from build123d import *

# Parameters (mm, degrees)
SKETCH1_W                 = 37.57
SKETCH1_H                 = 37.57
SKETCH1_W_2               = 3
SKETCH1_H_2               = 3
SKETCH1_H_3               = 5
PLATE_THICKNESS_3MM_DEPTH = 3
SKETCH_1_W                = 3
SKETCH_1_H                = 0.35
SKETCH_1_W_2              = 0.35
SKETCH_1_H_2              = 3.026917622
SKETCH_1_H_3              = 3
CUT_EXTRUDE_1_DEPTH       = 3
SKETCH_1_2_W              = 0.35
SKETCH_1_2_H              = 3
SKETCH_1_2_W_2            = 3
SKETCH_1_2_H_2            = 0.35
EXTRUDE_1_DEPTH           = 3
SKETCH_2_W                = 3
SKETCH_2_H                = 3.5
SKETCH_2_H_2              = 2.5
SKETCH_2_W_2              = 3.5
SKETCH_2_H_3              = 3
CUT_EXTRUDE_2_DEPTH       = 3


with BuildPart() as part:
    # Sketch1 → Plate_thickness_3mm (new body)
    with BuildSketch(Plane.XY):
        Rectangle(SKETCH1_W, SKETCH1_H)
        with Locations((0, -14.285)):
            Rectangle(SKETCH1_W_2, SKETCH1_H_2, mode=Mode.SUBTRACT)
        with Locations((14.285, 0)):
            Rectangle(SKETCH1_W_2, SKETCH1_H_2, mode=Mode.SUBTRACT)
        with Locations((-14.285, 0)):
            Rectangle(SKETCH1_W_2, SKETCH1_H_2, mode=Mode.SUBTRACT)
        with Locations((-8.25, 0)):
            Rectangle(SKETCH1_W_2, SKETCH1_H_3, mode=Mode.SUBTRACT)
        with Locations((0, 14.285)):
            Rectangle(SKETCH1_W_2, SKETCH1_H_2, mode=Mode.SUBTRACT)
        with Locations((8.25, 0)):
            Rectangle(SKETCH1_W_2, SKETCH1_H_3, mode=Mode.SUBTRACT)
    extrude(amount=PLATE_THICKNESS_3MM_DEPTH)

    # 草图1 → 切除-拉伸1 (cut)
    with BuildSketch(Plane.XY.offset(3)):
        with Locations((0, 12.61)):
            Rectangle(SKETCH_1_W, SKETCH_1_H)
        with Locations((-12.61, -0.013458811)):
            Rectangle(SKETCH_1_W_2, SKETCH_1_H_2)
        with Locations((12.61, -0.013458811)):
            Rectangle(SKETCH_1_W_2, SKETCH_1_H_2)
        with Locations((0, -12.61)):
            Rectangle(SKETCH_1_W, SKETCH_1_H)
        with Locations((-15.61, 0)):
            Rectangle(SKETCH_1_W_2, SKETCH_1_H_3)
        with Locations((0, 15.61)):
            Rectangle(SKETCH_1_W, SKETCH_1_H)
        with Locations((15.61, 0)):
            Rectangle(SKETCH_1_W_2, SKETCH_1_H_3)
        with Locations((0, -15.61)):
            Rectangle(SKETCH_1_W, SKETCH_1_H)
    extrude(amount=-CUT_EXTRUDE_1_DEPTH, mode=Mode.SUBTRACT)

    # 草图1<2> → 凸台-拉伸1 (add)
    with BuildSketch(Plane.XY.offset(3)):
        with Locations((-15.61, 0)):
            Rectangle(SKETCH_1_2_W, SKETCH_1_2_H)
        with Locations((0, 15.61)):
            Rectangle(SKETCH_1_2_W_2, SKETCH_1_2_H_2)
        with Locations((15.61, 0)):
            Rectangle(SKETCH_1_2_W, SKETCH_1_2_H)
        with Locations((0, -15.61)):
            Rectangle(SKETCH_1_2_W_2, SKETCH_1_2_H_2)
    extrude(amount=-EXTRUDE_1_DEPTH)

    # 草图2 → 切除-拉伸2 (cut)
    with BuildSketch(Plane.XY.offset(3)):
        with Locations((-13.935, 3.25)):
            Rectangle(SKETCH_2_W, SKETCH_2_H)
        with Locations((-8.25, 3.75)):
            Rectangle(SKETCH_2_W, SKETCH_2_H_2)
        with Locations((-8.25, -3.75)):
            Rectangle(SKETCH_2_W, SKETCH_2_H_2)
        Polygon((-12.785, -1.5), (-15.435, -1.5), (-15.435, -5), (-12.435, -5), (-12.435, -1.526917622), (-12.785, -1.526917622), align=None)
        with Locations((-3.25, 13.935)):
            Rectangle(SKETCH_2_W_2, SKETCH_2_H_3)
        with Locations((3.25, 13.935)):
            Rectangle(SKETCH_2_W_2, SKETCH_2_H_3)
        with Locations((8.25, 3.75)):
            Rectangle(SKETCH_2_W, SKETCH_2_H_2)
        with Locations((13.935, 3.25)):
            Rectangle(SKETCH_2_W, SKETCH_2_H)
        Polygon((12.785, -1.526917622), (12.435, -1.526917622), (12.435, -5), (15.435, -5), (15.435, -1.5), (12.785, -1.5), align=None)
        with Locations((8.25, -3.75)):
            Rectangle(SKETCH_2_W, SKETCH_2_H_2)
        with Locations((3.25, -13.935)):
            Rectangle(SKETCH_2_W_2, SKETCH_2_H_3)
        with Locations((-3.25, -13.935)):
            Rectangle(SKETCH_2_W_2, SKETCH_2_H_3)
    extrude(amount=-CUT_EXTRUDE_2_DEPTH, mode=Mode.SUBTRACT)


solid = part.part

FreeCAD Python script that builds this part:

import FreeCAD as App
import Part
import Sketcher
from FreeCAD import Vector
Q = App.Units.Quantity

doc = App.newDocument("Part")
body = doc.addObject("PartDesign::Body", "Body")

sketch1 = body.newObject("Sketcher::SketchObject", "Sketch")
sketch1.AttachmentSupport = (doc.getObject("XY_Plane"), [""])
sketch1.MapMode = "FlatFace"
sketch1.addGeometry(Part.LineSegment(Vector(-18.8, 18.8, 0), Vector(-18.8, -18.8, 0)), False)
sketch1.addGeometry(Part.LineSegment(Vector(-18.8, -18.8, 0), Vector(18.8, -18.8, 0)), False)
sketch1.addGeometry(Part.LineSegment(Vector(18.8, -18.8, 0), Vector(18.8, 18.8, 0)), False)
sketch1.addGeometry(Part.LineSegment(Vector(18.8, 18.8, 0), Vector(-18.8, 18.8, 0)), False)
sketch1.addGeometry(Part.LineSegment(Vector(1.5, -15.8, 0), Vector(-1.5, -15.8, 0)), False)
sketch1.addGeometry(Part.LineSegment(Vector(-1.5, -15.8, 0), Vector(-1.5, -12.8, 0)), False)
sketch1.addGeometry(Part.LineSegment(Vector(-1.5, -12.8, 0), Vector(1.5, -12.8, 0)), False)
sketch1.addGeometry(Part.LineSegment(Vector(1.5, -12.8, 0), Vector(1.5, -15.8, 0)), False)
sketch1.addGeometry(Part.LineSegment(Vector(-12.8, -1.5, 0), Vector(-15.8, -1.5, 0)), False)
sketch1.addGeometry(Part.LineSegment(Vector(-15.8, -1.5, 0), Vector(-15.8, 1.5, 0)), False)
sketch1.addGeometry(Part.LineSegment(Vector(-15.8, 1.5, 0), Vector(-12.8, 1.5, 0)), False)
sketch1.addGeometry(Part.LineSegment(Vector(-12.8, 1.5, 0), Vector(-12.8, -1.5, 0)), False)
sketch1.addGeometry(Part.LineSegment(Vector(-6.8, -2.5, 0), Vector(-9.8, -2.5, 0)), False)
sketch1.addGeometry(Part.LineSegment(Vector(-9.8, -2.5, 0), Vector(-9.8, 2.5, 0)), False)
sketch1.addGeometry(Part.LineSegment(Vector(-9.8, 2.5, 0), Vector(-6.8, 2.5, 0)), False)
sketch1.addGeometry(Part.LineSegment(Vector(-6.8, 2.5, 0), Vector(-6.8, -2.5, 0)), False)
sketch1.addGeometry(Part.LineSegment(Vector(9.8, -2.5, 0), Vector(6.8, -2.5, 0)), False)
sketch1.addGeometry(Part.LineSegment(Vector(6.8, -2.5, 0), Vector(6.8, 2.5, 0)), False)
sketch1.addGeometry(Part.LineSegment(Vector(6.8, 2.5, 0), Vector(9.8, 2.5, 0)), False)
sketch1.addGeometry(Part.LineSegment(Vector(9.8, 2.5, 0), Vector(9.8, -2.5, 0)), False)
sketch1.addGeometry(Part.LineSegment(Vector(15.8, -1.5, 0), Vector(12.8, -1.5, 0)), False)
sketch1.addGeometry(Part.LineSegment(Vector(12.8, -1.5, 0), Vector(12.8, 1.5, 0)), False)
sketch1.addGeometry(Part.LineSegment(Vector(12.8, 1.5, 0), Vector(15.8, 1.5, 0)), False)
sketch1.addGeometry(Part.LineSegment(Vector(15.8, 1.5, 0), Vector(15.8, -1.5, 0)), False)
sketch1.addGeometry(Part.LineSegment(Vector(1.5, 12.8, 0), Vector(-1.5, 12.8, 0)), False)
sketch1.addGeometry(Part.LineSegment(Vector(-1.5, 12.8, 0), Vector(-1.5, 15.8, 0)), False)
sketch1.addGeometry(Part.LineSegment(Vector(-1.5, 15.8, 0), Vector(1.5, 15.8, 0)), False)
sketch1.addGeometry(Part.LineSegment(Vector(1.5, 15.8, 0), Vector(1.5, 12.8, 0)), False)
sketch1.addConstraint(Sketcher.Constraint("Coincident", 0, 2, 1, 1))
sketch1.addConstraint(Sketcher.Constraint("Coincident", 1, 2, 2, 1))
sketch1.addConstraint(Sketcher.Constraint("Coincident", 2, 2, 3, 1))
sketch1.addConstraint(Sketcher.Constraint("Coincident", 3, 2, 0, 1))
sketch1.addConstraint(Sketcher.Constraint("Coincident", 4, 2, 5, 1))
sketch1.addConstraint(Sketcher.Constraint("Coincident", 5, 2, 6, 1))
sketch1.addConstraint(Sketcher.Constraint("Coincident", 6, 2, 7, 1))
sketch1.addConstraint(Sketcher.Constraint("Coincident", 7, 2, 4, 1))
sketch1.addConstraint(Sketcher.Constraint("Coincident", 8, 2, 9, 1))
sketch1.addConstraint(Sketcher.Constraint("Coincident", 9, 2, 10, 1))
sketch1.addConstraint(Sketcher.Constraint("Coincident", 10, 2, 11, 1))
sketch1.addConstraint(Sketcher.Constraint("Coincident", 11, 2, 8, 1))
sketch1.addConstraint(Sketcher.Constraint("Coincident", 12, 2, 13, 1))
sketch1.addConstraint(Sketcher.Constraint("Coincident", 13, 2, 14, 1))
sketch1.addConstraint(Sketcher.Constraint("Coincident", 14, 2, 15, 1))
sketch1.addConstraint(Sketcher.Constraint("Coincident", 15, 2, 12, 1))
sketch1.addConstraint(Sketcher.Constraint("Coincident", 16, 2, 17, 1))
sketch1.addConstraint(Sketcher.Constraint("Coincident", 17, 2, 18, 1))
sketch1.addConstraint(Sketcher.Constraint("Coincident", 18, 2, 19, 1))
sketch1.addConstraint(Sketcher.Constraint("Coincident", 19, 2, 16, 1))
sketch1.addConstraint(Sketcher.Constraint("Coincident", 20, 2, 21, 1))
sketch1.addConstraint(Sketcher.Constraint("Coincident", 21, 2, 22, 1))
sketch1.addConstraint(Sketcher.Constraint("Coincident", 22, 2, 23, 1))
sketch1.addConstraint(Sketcher.Constraint("Coincident", 23, 2, 20, 1))
sketch1.addConstraint(Sketcher.Constraint("Coincident", 24, 2, 25, 1))
sketch1.addConstraint(Sketcher.Constraint("Coincident", 25, 2, 26, 1))
sketch1.addConstraint(Sketcher.Constraint("Coincident", 26, 2, 27, 1))
sketch1.addConstraint(Sketcher.Constraint("Coincident", 27, 2, 24, 1))
sketch1.addConstraint(Sketcher.Constraint("Vertical", 0))
sketch1.addConstraint(Sketcher.Constraint("Horizontal", 1))
sketch1.addConstraint(Sketcher.Constraint("Vertical", 2))
sketch1.addConstraint(Sketcher.Constraint("Horizontal", 3))
sketch1.addConstraint(Sketcher.Constraint("Horizontal", 4))
sketch1.addConstraint(Sketcher.Constraint("Vertical", 5))
sketch1.addConstraint(Sketcher.Constraint("Horizontal", 6))
sketch1.addConstraint(Sketcher.Constraint("Vertical", 7))
sketch1.addConstraint(Sketcher.Constraint("Horizontal", 8))
sketch1.addConstraint(Sketcher.Constraint("Vertical", 9))
sketch1.addConstraint(Sketcher.Constraint("Horizontal", 10))
sketch1.addConstraint(Sketcher.Constraint("Vertical", 11))
sketch1.addConstraint(Sketcher.Constraint("Horizontal", 12))
sketch1.addConstraint(Sketcher.Constraint("Vertical", 13))
sketch1.addConstraint(Sketcher.Constraint("Horizontal", 14))
sketch1.addConstraint(Sketcher.Constraint("Vertical", 15))
sketch1.addConstraint(Sketcher.Constraint("Horizontal", 16))
sketch1.addConstraint(Sketcher.Constraint("Vertical", 17))
sketch1.addConstraint(Sketcher.Constraint("Horizontal", 18))
sketch1.addConstraint(Sketcher.Constraint("Vertical", 19))
sketch1.addConstraint(Sketcher.Constraint("Horizontal", 20))
sketch1.addConstraint(Sketcher.Constraint("Vertical", 21))
sketch1.addConstraint(Sketcher.Constraint("Horizontal", 22))
sketch1.addConstraint(Sketcher.Constraint("Vertical", 23))
sketch1.addConstraint(Sketcher.Constraint("Horizontal", 24))
sketch1.addConstraint(Sketcher.Constraint("Vertical", 25))
sketch1.addConstraint(Sketcher.Constraint("Horizontal", 26))
sketch1.addConstraint(Sketcher.Constraint("Vertical", 27))
sketch1.addConstraint(Sketcher.Constraint("Symmetric", 0, 2, 2, 2, -1, 1))
sketch1.addConstraint(Sketcher.Constraint("Symmetric", 14, 2, 16, 2, -1, 1))
sketch1.addConstraint(Sketcher.Constraint("Symmetric", 12, 2, 18, 2, -1, 1))
sketch1.addConstraint(Sketcher.Constraint("Symmetric", 10, 2, 20, 2, -1, 1))
sketch1.addConstraint(Sketcher.Constraint("Symmetric", 8, 2, 22, 2, -1, 1))
sketch1.addConstraint(Sketcher.Constraint("Symmetric", 6, 2, 24, 2, -1, 1))
sketch1.addConstraint(Sketcher.Constraint("Symmetric", 4, 2, 26, 2, -1, 1))
sketch1.addConstraint(Sketcher.Constraint("Horizontal", 15, 2, 16, 2))
sketch1.addConstraint(Sketcher.Constraint("Horizontal", 11, 2, 20, 2))
sketch1.addConstraint(Sketcher.Constraint("Vertical", 5, 2, 24, 2))
sketch1.addConstraint(Sketcher.Constraint("Equal", 6, 8))
sketch1.addConstraint(Sketcher.Constraint("Equal", 10, 12))
sketch1.addConstraint(Sketcher.Constraint("Equal", 3, 0))
sketch1.addConstraint(Sketcher.Constraint("Equal", 26, 5))
sketch1.addConstraint(Sketcher.Constraint("Equal", 7, 9))
sketch1.addConstraint(Sketcher.Constraint("DistanceX", 4, 2, 4, 1, Q("3 mm")))
sketch1.addConstraint(Sketcher.Constraint("DistanceY", 13, 1, 13, 2, Q("5 mm")))
sketch1.addConstraint(Sketcher.Constraint("DistanceY", 0, 2, 4, 2, Q("3 mm")))
sketch1.addConstraint(Sketcher.Constraint("DistanceX", 0, 2, 8, 2, Q("3 mm")))
sketch1.addConstraint(Sketcher.Constraint("DistanceX", 1, 1, 1, 2, Q("37.57 mm")))
sketch1.addConstraint(Sketcher.Constraint("DistanceX", 15, 2, 16, 2, Q("13.5 mm")))
pad1 = body.newObject("PartDesign::Pad", "Pad")
pad1.Profile = sketch1
pad1.Length = 3

sketch2 = body.newObject("Sketcher::SketchObject", "Sketch001")
sketch2.AttachmentSupport = (doc.getObject("XY_Plane"), [""])
sketch2.MapMode = "FlatFace"
sketch2.AttachmentOffset = App.Placement(Vector(0, 0, 3), App.Rotation())
sketch2.addGeometry(Part.LineSegment(Vector(-1.5, 12.79, 0), Vector(-1.5, 12.44, 0)), False)
sketch2.addGeometry(Part.LineSegment(Vector(-1.5, 12.44, 0), Vector(1.5, 12.44, 0)), False)
sketch2.addGeometry(Part.LineSegment(Vector(1.5, 12.44, 0), Vector(1.5, 12.79, 0)), False)
sketch2.addGeometry(Part.LineSegment(Vector(1.5, 12.79, 0), Vector(-1.5, 12.79, 0)), False)
sketch2.addGeometry(Part.LineSegment(Vector(-12.79, 1.5, 0), Vector(-12.79, -1.53, 0)), False)
sketch2.addGeometry(Part.LineSegment(Vector(-12.79, -1.53, 0), Vector(-12.44, -1.53, 0)), False)
sketch2.addGeometry(Part.LineSegment(Vector(-12.44, -1.53, 0), Vector(-12.44, 1.5, 0)), False)
sketch2.addGeometry(Part.LineSegment(Vector(-12.44, 1.5, 0), Vector(-12.79, 1.5, 0)), False)
sketch2.addGeometry(Part.LineSegment(Vector(12.44, 1.5, 0), Vector(12.44, -1.53, 0)), False)
sketch2.addGeometry(Part.LineSegment(Vector(12.44, -1.53, 0), Vector(12.79, -1.53, 0)), False)
sketch2.addGeometry(Part.LineSegment(Vector(12.79, -1.53, 0), Vector(12.79, 1.5, 0)), False)
sketch2.addGeometry(Part.LineSegment(Vector(12.79, 1.5, 0), Vector(12.44, 1.5, 0)), False)
sketch2.addGeometry(Part.LineSegment(Vector(-1.5, -12.44, 0), Vector(-1.5, -12.79, 0)), False)
sketch2.addGeometry(Part.LineSegment(Vector(-1.5, -12.79, 0), Vector(1.5, -12.79, 0)), False)
sketch2.addGeometry(Part.LineSegment(Vector(1.5, -12.79, 0), Vector(1.5, -12.44, 0)), False)
sketch2.addGeometry(Part.LineSegment(Vector(1.5, -12.44, 0), Vector(-1.5, -12.44, 0)), False)
sketch2.addGeometry(Part.LineSegment(Vector(-15.79, 1.5, 0), Vector(-15.79, -1.5, 0)), False)
sketch2.addGeometry(Part.LineSegment(Vector(-15.79, -1.5, 0), Vector(-15.44, -1.5, 0)), False)
sketch2.addGeometry(Part.LineSegment(Vector(-15.44, -1.5, 0), Vector(-15.44, 1.5, 0)), False)
sketch2.addGeometry(Part.LineSegment(Vector(-15.44, 1.5, 0), Vector(-15.79, 1.5, 0)), False)
sketch2.addGeometry(Part.LineSegment(Vector(-1.5, 15.79, 0), Vector(-1.5, 15.44, 0)), False)
sketch2.addGeometry(Part.LineSegment(Vector(-1.5, 15.44, 0), Vector(1.5, 15.44, 0)), False)
sketch2.addGeometry(Part.LineSegment(Vector(1.5, 15.44, 0), Vector(1.5, 15.79, 0)), False)
sketch2.addGeometry(Part.LineSegment(Vector(1.5, 15.79, 0), Vector(-1.5, 15.79, 0)), False)
sketch2.addGeometry(Part.LineSegment(Vector(15.44, 1.5, 0), Vector(15.44, -1.5, 0)), False)
sketch2.addGeometry(Part.LineSegment(Vector(15.44, -1.5, 0), Vector(15.79, -1.5, 0)), False)
sketch2.addGeometry(Part.LineSegment(Vector(15.79, -1.5, 0), Vector(15.79, 1.5, 0)), False)
sketch2.addGeometry(Part.LineSegment(Vector(15.79, 1.5, 0), Vector(15.44, 1.5, 0)), False)
sketch2.addGeometry(Part.LineSegment(Vector(-1.5, -15.44, 0), Vector(-1.5, -15.79, 0)), False)
sketch2.addGeometry(Part.LineSegment(Vector(-1.5, -15.79, 0), Vector(1.5, -15.79, 0)), False)
sketch2.addGeometry(Part.LineSegment(Vector(1.5, -15.79, 0), Vector(1.5, -15.44, 0)), False)
sketch2.addGeometry(Part.LineSegment(Vector(1.5, -15.44, 0), Vector(-1.5, -15.44, 0)), False)
sketch2.addConstraint(Sketcher.Constraint("Coincident", 0, 2, 1, 1))
sketch2.addConstraint(Sketcher.Constraint("Coincident", 1, 2, 2, 1))
sketch2.addConstraint(Sketcher.Constraint("Coincident", 2, 2, 3, 1))
sketch2.addConstraint(Sketcher.Constraint("Coincident", 3, 2, 0, 1))
sketch2.addConstraint(Sketcher.Constraint("Coincident", 4, 2, 5, 1))
sketch2.addConstraint(Sketcher.Constraint("Coincident", 5, 2, 6, 1))
sketch2.addConstraint(Sketcher.Constraint("Coincident", 6, 2, 7, 1))
sketch2.addConstraint(Sketcher.Constraint("Coincident", 7, 2, 4, 1))
sketch2.addConstraint(Sketcher.Constraint("Coincident", 8, 2, 9, 1))
sketch2.addConstraint(Sketcher.Constraint("Coincident", 9, 2, 10, 1))
sketch2.addConstraint(Sketcher.Constraint("Coincident", 10, 2, 11, 1))
sketch2.addConstraint(Sketcher.Constraint("Coincident", 11, 2, 8, 1))
sketch2.addConstraint(Sketcher.Constraint("Coincident", 12, 2, 13, 1))
sketch2.addConstraint(Sketcher.Constraint("Coincident", 13, 2, 14, 1))
sketch2.addConstraint(Sketcher.Constraint("Coincident", 14, 2, 15, 1))
sketch2.addConstraint(Sketcher.Constraint("Coincident", 15, 2, 12, 1))
sketch2.addConstraint(Sketcher.Constraint("Coincident", 16, 2, 17, 1))
sketch2.addConstraint(Sketcher.Constraint("Coincident", 17, 2, 18, 1))
sketch2.addConstraint(Sketcher.Constraint("Coincident", 18, 2, 19, 1))
sketch2.addConstraint(Sketcher.Constraint("Coincident", 19, 2, 16, 1))
sketch2.addConstraint(Sketcher.Constraint("Coincident", 20, 2, 21, 1))
sketch2.addConstraint(Sketcher.Constraint("Coincident", 21, 2, 22, 1))
sketch2.addConstraint(Sketcher.Constraint("Coincident", 22, 2, 23, 1))
sketch2.addConstraint(Sketcher.Constraint("Coincident", 23, 2, 20, 1))
sketch2.addConstraint(Sketcher.Constraint("Coincident", 24, 2, 25, 1))
sketch2.addConstraint(Sketcher.Constraint("Coincident", 25, 2, 26, 1))
sketch2.addConstraint(Sketcher.Constraint("Coincident", 26, 2, 27, 1))
sketch2.addConstraint(Sketcher.Constraint("Coincident", 27, 2, 24, 1))
sketch2.addConstraint(Sketcher.Constraint("Coincident", 28, 2, 29, 1))
sketch2.addConstraint(Sketcher.Constraint("Coincident", 29, 2, 30, 1))
sketch2.addConstraint(Sketcher.Constraint("Coincident", 30, 2, 31, 1))
sketch2.addConstraint(Sketcher.Constraint("Coincident", 31, 2, 28, 1))
sketch2.addConstraint(Sketcher.Constraint("Vertical", 0))
sketch2.addConstraint(Sketcher.Constraint("Horizontal", 1))
sketch2.addConstraint(Sketcher.Constraint("Vertical", 2))
sketch2.addConstraint(Sketcher.Constraint("Horizontal", 3))
sketch2.addConstraint(Sketcher.Constraint("Vertical", 4))
sketch2.addConstraint(Sketcher.Constraint("Horizontal", 5))
sketch2.addConstraint(Sketcher.Constraint("Vertical", 6))
sketch2.addConstraint(Sketcher.Constraint("Horizontal", 7))
sketch2.addConstraint(Sketcher.Constraint("Vertical", 8))
sketch2.addConstraint(Sketcher.Constraint("Horizontal", 9))
sketch2.addConstraint(Sketcher.Constraint("Vertical", 10))
sketch2.addConstraint(Sketcher.Constraint("Horizontal", 11))
sketch2.addConstraint(Sketcher.Constraint("Vertical", 12))
sketch2.addConstraint(Sketcher.Constraint("Horizontal", 13))
sketch2.addConstraint(Sketcher.Constraint("Vertical", 14))
sketch2.addConstraint(Sketcher.Constraint("Horizontal", 15))
sketch2.addConstraint(Sketcher.Constraint("Vertical", 16))
sketch2.addConstraint(Sketcher.Constraint("Horizontal", 17))
sketch2.addConstraint(Sketcher.Constraint("Vertical", 18))
sketch2.addConstraint(Sketcher.Constraint("Horizontal", 19))
sketch2.addConstraint(Sketcher.Constraint("Vertical", 20))
sketch2.addConstraint(Sketcher.Constraint("Horizontal", 21))
sketch2.addConstraint(Sketcher.Constraint("Vertical", 22))
sketch2.addConstraint(Sketcher.Constraint("Horizontal", 23))
sketch2.addConstraint(Sketcher.Constraint("Vertical", 24))
sketch2.addConstraint(Sketcher.Constraint("Horizontal", 25))
sketch2.addConstraint(Sketcher.Constraint("Vertical", 26))
sketch2.addConstraint(Sketcher.Constraint("Horizontal", 27))
sketch2.addConstraint(Sketcher.Constraint("Vertical", 28))
sketch2.addConstraint(Sketcher.Constraint("Horizontal", 29))
sketch2.addConstraint(Sketcher.Constraint("Vertical", 30))
sketch2.addConstraint(Sketcher.Constraint("Horizontal", 31))
sketch2.addConstraint(Sketcher.Constraint("Symmetric", 2, 2, 12, 2, -1, 1))
sketch2.addConstraint(Sketcher.Constraint("Symmetric", 0, 2, 14, 2, -1, 1))
sketch2.addConstraint(Sketcher.Constraint("Symmetric", 18, 2, 24, 2, -1, 1))
sketch2.addConstraint(Sketcher.Constraint("Symmetric", 16, 2, 26, 2, -1, 1))
sketch2.addConstraint(Sketcher.Constraint("Symmetric", 22, 2, 28, 2, -1, 1))
sketch2.addConstraint(Sketcher.Constraint("Symmetric", 20, 2, 30, 2, -1, 1))
sketch2.addConstraint(Sketcher.Constraint("Symmetric", 5, 2, 8, 2, -2))
sketch2.addConstraint(Sketcher.Constraint("Symmetric", 7, 2, 10, 2, -2))
sketch2.addConstraint(Sketcher.Constraint("Horizontal", 11, 2, 18, 2))
sketch2.addConstraint(Sketcher.Constraint("Horizontal", 17, 2, 24, 2))
sketch2.addConstraint(Sketcher.Constraint("Vertical", 3, 2, 12, 2))
sketch2.addConstraint(Sketcher.Constraint("Vertical", 15, 2, 20, 2))
sketch2.addConstraint(Sketcher.Constraint("Vertical", 14, 2, 21, 2))
sketch2.addConstraint(Sketcher.Constraint("Equal", 11, 17))
sketch2.addConstraint(Sketcher.Constraint("Equal", 27, 0))
sketch2.addConstraint(Sketcher.Constraint("Equal", 31, 16))
sketch2.addConstraint(Sketcher.Constraint("Equal", 14, 20))
sketch2.addConstraint(Sketcher.Constraint("DistanceX", 1, 1, 1, 2, Q("3 mm")))
sketch2.addConstraint(Sketcher.Constraint("DistanceX", 16, 2, 4, 2, Q("3 mm")))
sketch2.addConstraint(Sketcher.Constraint("DistanceY", 0, 2, 20, 2, Q("3 mm")))
sketch2.addConstraint(Sketcher.Constraint("DistanceX", 5, 1, 5, 2, Q("0.35 mm")))
sketch2.addConstraint(Sketcher.Constraint("DistanceX", 5, 2, 8, 2, Q("24.87 mm")))
sketch2.addConstraint(Sketcher.Constraint("DistanceY", -1, 1, 0, 2, Q("12.435 mm")))
sketch2.addConstraint(Sketcher.Constraint("DistanceY", 4, 2, 4, 1, Q("3.026918 mm")))
pocket1 = body.newObject("PartDesign::Pocket", "Pocket")
pocket1.Profile = sketch2
pocket1.Length = 3

sketch3 = body.newObject("Sketcher::SketchObject", "Sketch002")
sketch3.AttachmentSupport = (doc.getObject("XY_Plane"), [""])
sketch3.MapMode = "FlatFace"
sketch3.AttachmentOffset = App.Placement(Vector(0, 0, 3), App.Rotation())
sketch3.addGeometry(Part.LineSegment(Vector(-15.79, 1.5, 0), Vector(-15.79, -1.5, 0)), False)
sketch3.addGeometry(Part.LineSegment(Vector(-15.79, -1.5, 0), Vector(-15.44, -1.5, 0)), False)
sketch3.addGeometry(Part.LineSegment(Vector(-15.44, -1.5, 0), Vector(-15.44, 1.5, 0)), False)
sketch3.addGeometry(Part.LineSegment(Vector(-15.44, 1.5, 0), Vector(-15.79, 1.5, 0)), False)
sketch3.addGeometry(Part.LineSegment(Vector(-1.5, 15.79, 0), Vector(-1.5, 15.44, 0)), False)
sketch3.addGeometry(Part.LineSegment(Vector(-1.5, 15.44, 0), Vector(1.5, 15.44, 0)), False)
sketch3.addGeometry(Part.LineSegment(Vector(1.5, 15.44, 0), Vector(1.5, 15.79, 0)), False)
sketch3.addGeometry(Part.LineSegment(Vector(1.5, 15.79, 0), Vector(-1.5, 15.79, 0)), False)
sketch3.addGeometry(Part.LineSegment(Vector(15.44, 1.5, 0), Vector(15.44, -1.5, 0)), False)
sketch3.addGeometry(Part.LineSegment(Vector(15.44, -1.5, 0), Vector(15.79, -1.5, 0)), False)
sketch3.addGeometry(Part.LineSegment(Vector(15.79, -1.5, 0), Vector(15.79, 1.5, 0)), False)
sketch3.addGeometry(Part.LineSegment(Vector(15.79, 1.5, 0), Vector(15.44, 1.5, 0)), False)
sketch3.addGeometry(Part.LineSegment(Vector(-1.5, -15.44, 0), Vector(-1.5, -15.79, 0)), False)
sketch3.addGeometry(Part.LineSegment(Vector(-1.5, -15.79, 0), Vector(1.5, -15.79, 0)), False)
sketch3.addGeometry(Part.LineSegment(Vector(1.5, -15.79, 0), Vector(1.5, -15.44, 0)), False)
sketch3.addGeometry(Part.LineSegment(Vector(1.5, -15.44, 0), Vector(-1.5, -15.44, 0)), False)
sketch3.addConstraint(Sketcher.Constraint("Coincident", 0, 2, 1, 1))
sketch3.addConstraint(Sketcher.Constraint("Coincident", 1, 2, 2, 1))
sketch3.addConstraint(Sketcher.Constraint("Coincident", 2, 2, 3, 1))
sketch3.addConstraint(Sketcher.Constraint("Coincident", 3, 2, 0, 1))
sketch3.addConstraint(Sketcher.Constraint("Coincident", 4, 2, 5, 1))
sketch3.addConstraint(Sketcher.Constraint("Coincident", 5, 2, 6, 1))
sketch3.addConstraint(Sketcher.Constraint("Coincident", 6, 2, 7, 1))
sketch3.addConstraint(Sketcher.Constraint("Coincident", 7, 2, 4, 1))
sketch3.addConstraint(Sketcher.Constraint("Coincident", 8, 2, 9, 1))
sketch3.addConstraint(Sketcher.Constraint("Coincident", 9, 2, 10, 1))
sketch3.addConstraint(Sketcher.Constraint("Coincident", 10, 2, 11, 1))
sketch3.addConstraint(Sketcher.Constraint("Coincident", 11, 2, 8, 1))
sketch3.addConstraint(Sketcher.Constraint("Coincident", 12, 2, 13, 1))
sketch3.addConstraint(Sketcher.Constraint("Coincident", 13, 2, 14, 1))
sketch3.addConstraint(Sketcher.Constraint("Coincident", 14, 2, 15, 1))
sketch3.addConstraint(Sketcher.Constraint("Coincident", 15, 2, 12, 1))
sketch3.addConstraint(Sketcher.Constraint("Vertical", 0))
sketch3.addConstraint(Sketcher.Constraint("Horizontal", 1))
sketch3.addConstraint(Sketcher.Constraint("Vertical", 2))
sketch3.addConstraint(Sketcher.Constraint("Horizontal", 3))
sketch3.addConstraint(Sketcher.Constraint("Vertical", 4))
sketch3.addConstraint(Sketcher.Constraint("Horizontal", 5))
sketch3.addConstraint(Sketcher.Constraint("Vertical", 6))
sketch3.addConstraint(Sketcher.Constraint("Horizontal", 7))
sketch3.addConstraint(Sketcher.Constraint("Vertical", 8))
sketch3.addConstraint(Sketcher.Constraint("Horizontal", 9))
sketch3.addConstraint(Sketcher.Constraint("Vertical", 10))
sketch3.addConstraint(Sketcher.Constraint("Horizontal", 11))
sketch3.addConstraint(Sketcher.Constraint("Vertical", 12))
sketch3.addConstraint(Sketcher.Constraint("Horizontal", 13))
sketch3.addConstraint(Sketcher.Constraint("Vertical", 14))
sketch3.addConstraint(Sketcher.Constraint("Horizontal", 15))
sketch3.addConstraint(Sketcher.Constraint("Symmetric", 2, 2, 8, 2, -1, 1))
sketch3.addConstraint(Sketcher.Constraint("Symmetric", 0, 2, 10, 2, -1, 1))
sketch3.addConstraint(Sketcher.Constraint("Symmetric", 6, 2, 12, 2, -1, 1))
sketch3.addConstraint(Sketcher.Constraint("Symmetric", 4, 2, 14, 2, -1, 1))
sketch3.addConstraint(Sketcher.Constraint("Horizontal", 1, 2, 8, 2))
sketch3.addConstraint(Sketcher.Constraint("Vertical", 7, 2, 12, 2))
sketch3.addConstraint(Sketcher.Constraint("Equal", 15, 0))
sketch3.addConstraint(Sketcher.Constraint("Equal", 11, 4))
sketch3.addConstraint(Sketcher.Constraint("DistanceX", 5, 1, 5, 2, Q("3 mm")))
sketch3.addConstraint(Sketcher.Constraint("DistanceX", 1, 1, 1, 2, Q("0.35 mm")))
sketch3.addConstraint(Sketcher.Constraint("DistanceX", 1, 2, 8, 2, Q("30.87 mm")))
sketch3.addConstraint(Sketcher.Constraint("DistanceY", -1, 1, 4, 2, Q("15.435 mm")))
pad2 = body.newObject("PartDesign::Pad", "Pad001")
pad2.Profile = sketch3
pad2.Length = 3
pad2.Reversed = True

sketch4 = body.newObject("Sketcher::SketchObject", "Sketch003")
sketch4.AttachmentSupport = (doc.getObject("XY_Plane"), [""])
sketch4.MapMode = "FlatFace"
sketch4.AttachmentOffset = App.Placement(Vector(0, 0, 3), App.Rotation())
sketch4.addGeometry(Part.LineSegment(Vector(-15.435, 5, 0), Vector(-15.435, 1.5, 0)), False)
sketch4.addGeometry(Part.LineSegment(Vector(-15.435, 1.5, 0), Vector(-12.435, 1.5, 0)), False)
sketch4.addGeometry(Part.LineSegment(Vector(-12.435, 1.5, 0), Vector(-12.435, 5, 0)), False)
sketch4.addGeometry(Part.LineSegment(Vector(-12.435, 5, 0), Vector(-15.435, 5, 0)), False)
sketch4.addGeometry(Part.LineSegment(Vector(-9.75, 5, 0), Vector(-9.75, 2.5, 0)), False)
sketch4.addGeometry(Part.LineSegment(Vector(-9.75, 2.5, 0), Vector(-6.75, 2.5, 0)), False)
sketch4.addGeometry(Part.LineSegment(Vector(-6.75, 2.5, 0), Vector(-6.75, 5, 0)), False)
sketch4.addGeometry(Part.LineSegment(Vector(-6.75, 5, 0), Vector(-9.75, 5, 0)), False)
sketch4.addGeometry(Part.LineSegment(Vector(-9.75, -2.5, 0), Vector(-9.75, -5, 0)), False)
sketch4.addGeometry(Part.LineSegment(Vector(-9.75, -5, 0), Vector(-6.75, -5, 0)), False)
sketch4.addGeometry(Part.LineSegment(Vector(-6.75, -5, 0), Vector(-6.75, -2.5, 0)), False)
sketch4.addGeometry(Part.LineSegment(Vector(-6.75, -2.5, 0), Vector(-9.75, -2.5, 0)), False)
sketch4.addGeometry(Part.LineSegment(Vector(-12.785, -1.5, 0), Vector(-15.435, -1.5, 0)), False)
sketch4.addGeometry(Part.LineSegment(Vector(-15.435, -1.5, 0), Vector(-15.435, -5, 0)), False)
sketch4.addGeometry(Part.LineSegment(Vector(-15.435, -5, 0), Vector(-12.435, -5, 0)), False)
sketch4.addGeometry(Part.LineSegment(Vector(-12.435, -5, 0), Vector(-12.435, -1.527, 0)), False)
sketch4.addGeometry(Part.LineSegment(Vector(-12.435, -1.527, 0), Vector(-12.785, -1.527, 0)), False)
sketch4.addGeometry(Part.LineSegment(Vector(-12.785, -1.527, 0), Vector(-12.785, -1.5, 0)), False)
sketch4.addGeometry(Part.LineSegment(Vector(-5, 15.435, 0), Vector(-5, 12.435, 0)), False)
sketch4.addGeometry(Part.LineSegment(Vector(-5, 12.435, 0), Vector(-1.5, 12.435, 0)), False)
sketch4.addGeometry(Part.LineSegment(Vector(-1.5, 12.435, 0), Vector(-1.5, 15.435, 0)), False)
sketch4.addGeometry(Part.LineSegment(Vector(-1.5, 15.435, 0), Vector(-5, 15.435, 0)), False)
sketch4.addGeometry(Part.LineSegment(Vector(1.5, 15.435, 0), Vector(1.5, 12.435, 0)), False)
sketch4.addGeometry(Part.LineSegment(Vector(1.5, 12.435, 0), Vector(5, 12.435, 0)), False)
sketch4.addGeometry(Part.LineSegment(Vector(5, 12.435, 0), Vector(5, 15.435, 0)), False)
sketch4.addGeometry(Part.LineSegment(Vector(5, 15.435, 0), Vector(1.5, 15.435, 0)), False)
sketch4.addGeometry(Part.LineSegment(Vector(6.75, 5, 0), Vector(6.75, 2.5, 0)), False)
sketch4.addGeometry(Part.LineSegment(Vector(6.75, 2.5, 0), Vector(9.75, 2.5, 0)), False)
sketch4.addGeometry(Part.LineSegment(Vector(9.75, 2.5, 0), Vector(9.75, 5, 0)), False)
sketch4.addGeometry(Part.LineSegment(Vector(9.75, 5, 0), Vector(6.75, 5, 0)), False)
sketch4.addGeometry(Part.LineSegment(Vector(12.435, 5, 0), Vector(12.435, 1.5, 0)), False)
sketch4.addGeometry(Part.LineSegment(Vector(12.435, 1.5, 0), Vector(15.435, 1.5, 0)), False)
sketch4.addGeometry(Part.LineSegment(Vector(15.435, 1.5, 0), Vector(15.435, 5, 0)), False)
sketch4.addGeometry(Part.LineSegment(Vector(15.435, 5, 0), Vector(12.435, 5, 0)), False)
sketch4.addGeometry(Part.LineSegment(Vector(12.785, -1.527, 0), Vector(12.435, -1.527, 0)), False)
sketch4.addGeometry(Part.LineSegment(Vector(12.435, -1.527, 0), Vector(12.435, -5, 0)), False)
sketch4.addGeometry(Part.LineSegment(Vector(12.435, -5, 0), Vector(15.435, -5, 0)), False)
sketch4.addGeometry(Part.LineSegment(Vector(15.435, -5, 0), Vector(15.435, -1.5, 0)), False)
sketch4.addGeometry(Part.LineSegment(Vector(15.435, -1.5, 0), Vector(12.785, -1.5, 0)), False)
sketch4.addGeometry(Part.LineSegment(Vector(12.785, -1.5, 0), Vector(12.785, -1.527, 0)), False)
sketch4.addGeometry(Part.LineSegment(Vector(6.75, -2.5, 0), Vector(6.75, -5, 0)), False)
sketch4.addGeometry(Part.LineSegment(Vector(6.75, -5, 0), Vector(9.75, -5, 0)), False)
sketch4.addGeometry(Part.LineSegment(Vector(9.75, -5, 0), Vector(9.75, -2.5, 0)), False)
sketch4.addGeometry(Part.LineSegment(Vector(9.75, -2.5, 0), Vector(6.75, -2.5, 0)), False)
sketch4.addGeometry(Part.LineSegment(Vector(1.5, -12.435, 0), Vector(1.5, -15.435, 0)), False)
sketch4.addGeometry(Part.LineSegment(Vector(1.5, -15.435, 0), Vector(5, -15.435, 0)), False)
sketch4.addGeometry(Part.LineSegment(Vector(5, -15.435, 0), Vector(5, -12.435, 0)), False)
sketch4.addGeometry(Part.LineSegment(Vector(5, -12.435, 0), Vector(1.5, -12.435, 0)), False)
sketch4.addGeometry(Part.LineSegment(Vector(-5, -12.435, 0), Vector(-5, -15.435, 0)), False)
sketch4.addGeometry(Part.LineSegment(Vector(-5, -15.435, 0), Vector(-1.5, -15.435, 0)), False)
sketch4.addGeometry(Part.LineSegment(Vector(-1.5, -15.435, 0), Vector(-1.5, -12.435, 0)), False)
sketch4.addGeometry(Part.LineSegment(Vector(-1.5, -12.435, 0), Vector(-5, -12.435, 0)), False)
sketch4.addConstraint(Sketcher.Constraint("Coincident", 0, 2, 1, 1))
sketch4.addConstraint(Sketcher.Constraint("Coincident", 1, 2, 2, 1))
sketch4.addConstraint(Sketcher.Constraint("Coincident", 2, 2, 3, 1))
sketch4.addConstraint(Sketcher.Constraint("Coincident", 3, 2, 0, 1))
sketch4.addConstraint(Sketcher.Constraint("Coincident", 4, 2, 5, 1))
sketch4.addConstraint(Sketcher.Constraint("Coincident", 5, 2, 6, 1))
sketch4.addConstraint(Sketcher.Constraint("Coincident", 6, 2, 7, 1))
sketch4.addConstraint(Sketcher.Constraint("Coincident", 7, 2, 4, 1))
sketch4.addConstraint(Sketcher.Constraint("Coincident", 8, 2, 9, 1))
sketch4.addConstraint(Sketcher.Constraint("Coincident", 9, 2, 10, 1))
sketch4.addConstraint(Sketcher.Constraint("Coincident", 10, 2, 11, 1))
sketch4.addConstraint(Sketcher.Constraint("Coincident", 11, 2, 8, 1))
sketch4.addConstraint(Sketcher.Constraint("Coincident", 12, 2, 13, 1))
sketch4.addConstraint(Sketcher.Constraint("Coincident", 13, 2, 14, 1))
sketch4.addConstraint(Sketcher.Constraint("Coincident", 14, 2, 15, 1))
sketch4.addConstraint(Sketcher.Constraint("Coincident", 15, 2, 16, 1))
sketch4.addConstraint(Sketcher.Constraint("Coincident", 16, 2, 17, 1))
sketch4.addConstraint(Sketcher.Constraint("Coincident", 17, 2, 12, 1))
sketch4.addConstraint(Sketcher.Constraint("Coincident", 18, 2, 19, 1))
sketch4.addConstraint(Sketcher.Constraint("Coincident", 19, 2, 20, 1))
sketch4.addConstraint(Sketcher.Constraint("Coincident", 20, 2, 21, 1))
sketch4.addConstraint(Sketcher.Constraint("Coincident", 21, 2, 18, 1))
sketch4.addConstraint(Sketcher.Constraint("Coincident", 22, 2, 23, 1))
sketch4.addConstraint(Sketcher.Constraint("Coincident", 23, 2, 24, 1))
sketch4.addConstraint(Sketcher.Constraint("Coincident", 24, 2, 25, 1))
sketch4.addConstraint(Sketcher.Constraint("Coincident", 25, 2, 22, 1))
sketch4.addConstraint(Sketcher.Constraint("Coincident", 26, 2, 27, 1))
sketch4.addConstraint(Sketcher.Constraint("Coincident", 27, 2, 28, 1))
sketch4.addConstraint(Sketcher.Constraint("Coincident", 28, 2, 29, 1))
sketch4.addConstraint(Sketcher.Constraint("Coincident", 29, 2, 26, 1))
sketch4.addConstraint(Sketcher.Constraint("Coincident", 30, 2, 31, 1))
sketch4.addConstraint(Sketcher.Constraint("Coincident", 31, 2, 32, 1))
sketch4.addConstraint(Sketcher.Constraint("Coincident", 32, 2, 33, 1))
sketch4.addConstraint(Sketcher.Constraint("Coincident", 33, 2, 30, 1))
sketch4.addConstraint(Sketcher.Constraint("Coincident", 34, 2, 35, 1))
sketch4.addConstraint(Sketcher.Constraint("Coincident", 35, 2, 36, 1))
sketch4.addConstraint(Sketcher.Constraint("Coincident", 36, 2, 37, 1))
sketch4.addConstraint(Sketcher.Constraint("Coincident", 37, 2, 38, 1))
sketch4.addConstraint(Sketcher.Constraint("Coincident", 38, 2, 39, 1))
sketch4.addConstraint(Sketcher.Constraint("Coincident", 39, 2, 34, 1))
sketch4.addConstraint(Sketcher.Constraint("Coincident", 40, 2, 41, 1))
sketch4.addConstraint(Sketcher.Constraint("Coincident", 41, 2, 42, 1))
sketch4.addConstraint(Sketcher.Constraint("Coincident", 42, 2, 43, 1))
sketch4.addConstraint(Sketcher.Constraint("Coincident", 43, 2, 40, 1))
sketch4.addConstraint(Sketcher.Constraint("Coincident", 44, 2, 45, 1))
sketch4.addConstraint(Sketcher.Constraint("Coincident", 45, 2, 46, 1))
sketch4.addConstraint(Sketcher.Constraint("Coincident", 46, 2, 47, 1))
sketch4.addConstraint(Sketcher.Constraint("Coincident", 47, 2, 44, 1))
sketch4.addConstraint(Sketcher.Constraint("Coincident", 48, 2, 49, 1))
sketch4.addConstraint(Sketcher.Constraint("Coincident", 49, 2, 50, 1))
sketch4.addConstraint(Sketcher.Constraint("Coincident", 50, 2, 51, 1))
sketch4.addConstraint(Sketcher.Constraint("Coincident", 51, 2, 48, 1))
sketch4.addConstraint(Sketcher.Constraint("Vertical", 0))
sketch4.addConstraint(Sketcher.Constraint("Horizontal", 1))
sketch4.addConstraint(Sketcher.Constraint("Vertical", 2))
sketch4.addConstraint(Sketcher.Constraint("Horizontal", 3))
sketch4.addConstraint(Sketcher.Constraint("Vertical", 4))
sketch4.addConstraint(Sketcher.Constraint("Horizontal", 5))
sketch4.addConstraint(Sketcher.Constraint("Vertical", 6))
sketch4.addConstraint(Sketcher.Constraint("Horizontal", 7))
sketch4.addConstraint(Sketcher.Constraint("Vertical", 8))
sketch4.addConstraint(Sketcher.Constraint("Horizontal", 9))
sketch4.addConstraint(Sketcher.Constraint("Vertical", 10))
sketch4.addConstraint(Sketcher.Constraint("Horizontal", 11))
sketch4.addConstraint(Sketcher.Constraint("Horizontal", 12))
sketch4.addConstraint(Sketcher.Constraint("Vertical", 13))
sketch4.addConstraint(Sketcher.Constraint("Horizontal", 14))
sketch4.addConstraint(Sketcher.Constraint("Vertical", 15))
sketch4.addConstraint(Sketcher.Constraint("Horizontal", 16))
sketch4.addConstraint(Sketcher.Constraint("Vertical", 17))
sketch4.addConstraint(Sketcher.Constraint("Vertical", 18))
sketch4.addConstraint(Sketcher.Constraint("Horizontal", 19))
sketch4.addConstraint(Sketcher.Constraint("Vertical", 20))
sketch4.addConstraint(Sketcher.Constraint("Horizontal", 21))
sketch4.addConstraint(Sketcher.Constraint("Vertical", 22))
sketch4.addConstraint(Sketcher.Constraint("Horizontal", 23))
sketch4.addConstraint(Sketcher.Constraint("Vertical", 24))
sketch4.addConstraint(Sketcher.Constraint("Horizontal", 25))
sketch4.addConstraint(Sketcher.Constraint("Vertical", 26))
sketch4.addConstraint(Sketcher.Constraint("Horizontal", 27))
sketch4.addConstraint(Sketcher.Constraint("Vertical", 28))
sketch4.addConstraint(Sketcher.Constraint("Horizontal", 29))
sketch4.addConstraint(Sketcher.Constraint("Vertical", 30))
sketch4.addConstraint(Sketcher.Constraint("Horizontal", 31))
sketch4.addConstraint(Sketcher.Constraint("Vertical", 32))
sketch4.addConstraint(Sketcher.Constraint("Horizontal", 33))
sketch4.addConstraint(Sketcher.Constraint("Horizontal", 34))
sketch4.addConstraint(Sketcher.Constraint("Vertical", 35))
sketch4.addConstraint(Sketcher.Constraint("Horizontal", 36))
sketch4.addConstraint(Sketcher.Constraint("Vertical", 37))
sketch4.addConstraint(Sketcher.Constraint("Horizontal", 38))
sketch4.addConstraint(Sketcher.Constraint("Vertical", 39))
sketch4.addConstraint(Sketcher.Constraint("Vertical", 40))
sketch4.addConstraint(Sketcher.Constraint("Horizontal", 41))
sketch4.addConstraint(Sketcher.Constraint("Vertical", 42))
sketch4.addConstraint(Sketcher.Constraint("Horizontal", 43))
sketch4.addConstraint(Sketcher.Constraint("Vertical", 44))
sketch4.addConstraint(Sketcher.Constraint("Horizontal", 45))
sketch4.addConstraint(Sketcher.Constraint("Vertical", 46))
sketch4.addConstraint(Sketcher.Constraint("Horizontal", 47))
sketch4.addConstraint(Sketcher.Constraint("Vertical", 48))
sketch4.addConstraint(Sketcher.Constraint("Horizontal", 49))
sketch4.addConstraint(Sketcher.Constraint("Vertical", 50))
sketch4.addConstraint(Sketcher.Constraint("Horizontal", 51))
sketch4.addConstraint(Sketcher.Constraint("Symmetric", 10, 2, 26, 2, -1, 1))
sketch4.addConstraint(Sketcher.Constraint("Symmetric", 8, 2, 28, 2, -1, 1))
sketch4.addConstraint(Sketcher.Constraint("Symmetric", 12, 2, 31, 2, -1, 1))
sketch4.addConstraint(Sketcher.Constraint("Symmetric", 14, 2, 33, 2, -1, 1))
sketch4.addConstraint(Sketcher.Constraint("Symmetric", 2, 2, 35, 2, -1, 1))
sketch4.addConstraint(Sketcher.Constraint("Symmetric", 0, 2, 37, 2, -1, 1))
sketch4.addConstraint(Sketcher.Constraint("Symmetric", 6, 2, 40, 2, -1, 1))
sketch4.addConstraint(Sketcher.Constraint("Symmetric", 4, 2, 42, 2, -1, 1))
sketch4.addConstraint(Sketcher.Constraint("Symmetric", 20, 2, 44, 2, -1, 1))
sketch4.addConstraint(Sketcher.Constraint("Symmetric", 18, 2, 46, 2, -1, 1))
sketch4.addConstraint(Sketcher.Constraint("Symmetric", 24, 2, 48, 2, -1, 1))
sketch4.addConstraint(Sketcher.Constraint("Symmetric", 22, 2, 50, 2, -1, 1))
sketch4.addConstraint(Sketcher.Constraint("Symmetric", 19, 2, 22, 2, -2))
sketch4.addConstraint(Sketcher.Constraint("Symmetric", 21, 2, 24, 2, -2))
sketch4.addConstraint(Sketcher.Constraint("Symmetric", 5, 2, 26, 2, -2))
sketch4.addConstraint(Sketcher.Constraint("Symmetric", 7, 2, 28, 2, -2))
sketch4.addConstraint(Sketcher.Constraint("Symmetric", 1, 2, 30, 2, -2))
sketch4.addConstraint(Sketcher.Constraint("Symmetric", 3, 2, 32, 2, -2))
sketch4.addConstraint(Sketcher.Constraint("Symmetric", 16, 2, 39, 2, -2))
sketch4.addConstraint(Sketcher.Constraint("Horizontal", 3, 2, 6, 2))
sketch4.addConstraint(Sketcher.Constraint("Equal", 3, 5))
sketch4.addConstraint(Sketcher.Constraint("Equal", 51, 0))
sketch4.addConstraint(Sketcher.Constraint("Equal", 43, 18))
sketch4.addConstraint(Sketcher.Constraint("DistanceX", 1, 1, 1, 2, Q("3 mm")))
sketch4.addConstraint(Sketcher.Constraint("DistanceX", 19, 1, 19, 2, Q("3.5 mm")))
sketch4.addConstraint(Sketcher.Constraint("DistanceY", 4, 2, 4, 1, Q("2.5 mm")))
sketch4.addConstraint(Sketcher.Constraint("DistanceY", -1, 1, 2, 2, Q("5 mm")))
sketch4.addConstraint(Sketcher.Constraint("DistanceX", 18, 2, -1, 1, Q("5 mm")))
sketch4.addConstraint(Sketcher.Constraint("DistanceX", 12, 2, 12, 1, Q("2.65 mm")))
sketch4.addConstraint(Sketcher.Constraint("DistanceX", 5, 2, 26, 2, Q("13.5 mm")))
sketch4.addConstraint(Sketcher.Constraint("DistanceX", 0, 2, -1, 1, Q("15.435 mm")))
sketch4.addConstraint(Sketcher.Constraint("DistanceY", -1, 1, 18, 2, Q("12.435 mm")))
sketch4.addConstraint(Sketcher.Constraint("DistanceY", 15, 1, 15, 2, Q("3.473082 mm")))
pocket2 = body.newObject("PartDesign::Pocket", "Pocket001")
pocket2.Profile = sketch4
pocket2.Length = 3

doc.recompute()
